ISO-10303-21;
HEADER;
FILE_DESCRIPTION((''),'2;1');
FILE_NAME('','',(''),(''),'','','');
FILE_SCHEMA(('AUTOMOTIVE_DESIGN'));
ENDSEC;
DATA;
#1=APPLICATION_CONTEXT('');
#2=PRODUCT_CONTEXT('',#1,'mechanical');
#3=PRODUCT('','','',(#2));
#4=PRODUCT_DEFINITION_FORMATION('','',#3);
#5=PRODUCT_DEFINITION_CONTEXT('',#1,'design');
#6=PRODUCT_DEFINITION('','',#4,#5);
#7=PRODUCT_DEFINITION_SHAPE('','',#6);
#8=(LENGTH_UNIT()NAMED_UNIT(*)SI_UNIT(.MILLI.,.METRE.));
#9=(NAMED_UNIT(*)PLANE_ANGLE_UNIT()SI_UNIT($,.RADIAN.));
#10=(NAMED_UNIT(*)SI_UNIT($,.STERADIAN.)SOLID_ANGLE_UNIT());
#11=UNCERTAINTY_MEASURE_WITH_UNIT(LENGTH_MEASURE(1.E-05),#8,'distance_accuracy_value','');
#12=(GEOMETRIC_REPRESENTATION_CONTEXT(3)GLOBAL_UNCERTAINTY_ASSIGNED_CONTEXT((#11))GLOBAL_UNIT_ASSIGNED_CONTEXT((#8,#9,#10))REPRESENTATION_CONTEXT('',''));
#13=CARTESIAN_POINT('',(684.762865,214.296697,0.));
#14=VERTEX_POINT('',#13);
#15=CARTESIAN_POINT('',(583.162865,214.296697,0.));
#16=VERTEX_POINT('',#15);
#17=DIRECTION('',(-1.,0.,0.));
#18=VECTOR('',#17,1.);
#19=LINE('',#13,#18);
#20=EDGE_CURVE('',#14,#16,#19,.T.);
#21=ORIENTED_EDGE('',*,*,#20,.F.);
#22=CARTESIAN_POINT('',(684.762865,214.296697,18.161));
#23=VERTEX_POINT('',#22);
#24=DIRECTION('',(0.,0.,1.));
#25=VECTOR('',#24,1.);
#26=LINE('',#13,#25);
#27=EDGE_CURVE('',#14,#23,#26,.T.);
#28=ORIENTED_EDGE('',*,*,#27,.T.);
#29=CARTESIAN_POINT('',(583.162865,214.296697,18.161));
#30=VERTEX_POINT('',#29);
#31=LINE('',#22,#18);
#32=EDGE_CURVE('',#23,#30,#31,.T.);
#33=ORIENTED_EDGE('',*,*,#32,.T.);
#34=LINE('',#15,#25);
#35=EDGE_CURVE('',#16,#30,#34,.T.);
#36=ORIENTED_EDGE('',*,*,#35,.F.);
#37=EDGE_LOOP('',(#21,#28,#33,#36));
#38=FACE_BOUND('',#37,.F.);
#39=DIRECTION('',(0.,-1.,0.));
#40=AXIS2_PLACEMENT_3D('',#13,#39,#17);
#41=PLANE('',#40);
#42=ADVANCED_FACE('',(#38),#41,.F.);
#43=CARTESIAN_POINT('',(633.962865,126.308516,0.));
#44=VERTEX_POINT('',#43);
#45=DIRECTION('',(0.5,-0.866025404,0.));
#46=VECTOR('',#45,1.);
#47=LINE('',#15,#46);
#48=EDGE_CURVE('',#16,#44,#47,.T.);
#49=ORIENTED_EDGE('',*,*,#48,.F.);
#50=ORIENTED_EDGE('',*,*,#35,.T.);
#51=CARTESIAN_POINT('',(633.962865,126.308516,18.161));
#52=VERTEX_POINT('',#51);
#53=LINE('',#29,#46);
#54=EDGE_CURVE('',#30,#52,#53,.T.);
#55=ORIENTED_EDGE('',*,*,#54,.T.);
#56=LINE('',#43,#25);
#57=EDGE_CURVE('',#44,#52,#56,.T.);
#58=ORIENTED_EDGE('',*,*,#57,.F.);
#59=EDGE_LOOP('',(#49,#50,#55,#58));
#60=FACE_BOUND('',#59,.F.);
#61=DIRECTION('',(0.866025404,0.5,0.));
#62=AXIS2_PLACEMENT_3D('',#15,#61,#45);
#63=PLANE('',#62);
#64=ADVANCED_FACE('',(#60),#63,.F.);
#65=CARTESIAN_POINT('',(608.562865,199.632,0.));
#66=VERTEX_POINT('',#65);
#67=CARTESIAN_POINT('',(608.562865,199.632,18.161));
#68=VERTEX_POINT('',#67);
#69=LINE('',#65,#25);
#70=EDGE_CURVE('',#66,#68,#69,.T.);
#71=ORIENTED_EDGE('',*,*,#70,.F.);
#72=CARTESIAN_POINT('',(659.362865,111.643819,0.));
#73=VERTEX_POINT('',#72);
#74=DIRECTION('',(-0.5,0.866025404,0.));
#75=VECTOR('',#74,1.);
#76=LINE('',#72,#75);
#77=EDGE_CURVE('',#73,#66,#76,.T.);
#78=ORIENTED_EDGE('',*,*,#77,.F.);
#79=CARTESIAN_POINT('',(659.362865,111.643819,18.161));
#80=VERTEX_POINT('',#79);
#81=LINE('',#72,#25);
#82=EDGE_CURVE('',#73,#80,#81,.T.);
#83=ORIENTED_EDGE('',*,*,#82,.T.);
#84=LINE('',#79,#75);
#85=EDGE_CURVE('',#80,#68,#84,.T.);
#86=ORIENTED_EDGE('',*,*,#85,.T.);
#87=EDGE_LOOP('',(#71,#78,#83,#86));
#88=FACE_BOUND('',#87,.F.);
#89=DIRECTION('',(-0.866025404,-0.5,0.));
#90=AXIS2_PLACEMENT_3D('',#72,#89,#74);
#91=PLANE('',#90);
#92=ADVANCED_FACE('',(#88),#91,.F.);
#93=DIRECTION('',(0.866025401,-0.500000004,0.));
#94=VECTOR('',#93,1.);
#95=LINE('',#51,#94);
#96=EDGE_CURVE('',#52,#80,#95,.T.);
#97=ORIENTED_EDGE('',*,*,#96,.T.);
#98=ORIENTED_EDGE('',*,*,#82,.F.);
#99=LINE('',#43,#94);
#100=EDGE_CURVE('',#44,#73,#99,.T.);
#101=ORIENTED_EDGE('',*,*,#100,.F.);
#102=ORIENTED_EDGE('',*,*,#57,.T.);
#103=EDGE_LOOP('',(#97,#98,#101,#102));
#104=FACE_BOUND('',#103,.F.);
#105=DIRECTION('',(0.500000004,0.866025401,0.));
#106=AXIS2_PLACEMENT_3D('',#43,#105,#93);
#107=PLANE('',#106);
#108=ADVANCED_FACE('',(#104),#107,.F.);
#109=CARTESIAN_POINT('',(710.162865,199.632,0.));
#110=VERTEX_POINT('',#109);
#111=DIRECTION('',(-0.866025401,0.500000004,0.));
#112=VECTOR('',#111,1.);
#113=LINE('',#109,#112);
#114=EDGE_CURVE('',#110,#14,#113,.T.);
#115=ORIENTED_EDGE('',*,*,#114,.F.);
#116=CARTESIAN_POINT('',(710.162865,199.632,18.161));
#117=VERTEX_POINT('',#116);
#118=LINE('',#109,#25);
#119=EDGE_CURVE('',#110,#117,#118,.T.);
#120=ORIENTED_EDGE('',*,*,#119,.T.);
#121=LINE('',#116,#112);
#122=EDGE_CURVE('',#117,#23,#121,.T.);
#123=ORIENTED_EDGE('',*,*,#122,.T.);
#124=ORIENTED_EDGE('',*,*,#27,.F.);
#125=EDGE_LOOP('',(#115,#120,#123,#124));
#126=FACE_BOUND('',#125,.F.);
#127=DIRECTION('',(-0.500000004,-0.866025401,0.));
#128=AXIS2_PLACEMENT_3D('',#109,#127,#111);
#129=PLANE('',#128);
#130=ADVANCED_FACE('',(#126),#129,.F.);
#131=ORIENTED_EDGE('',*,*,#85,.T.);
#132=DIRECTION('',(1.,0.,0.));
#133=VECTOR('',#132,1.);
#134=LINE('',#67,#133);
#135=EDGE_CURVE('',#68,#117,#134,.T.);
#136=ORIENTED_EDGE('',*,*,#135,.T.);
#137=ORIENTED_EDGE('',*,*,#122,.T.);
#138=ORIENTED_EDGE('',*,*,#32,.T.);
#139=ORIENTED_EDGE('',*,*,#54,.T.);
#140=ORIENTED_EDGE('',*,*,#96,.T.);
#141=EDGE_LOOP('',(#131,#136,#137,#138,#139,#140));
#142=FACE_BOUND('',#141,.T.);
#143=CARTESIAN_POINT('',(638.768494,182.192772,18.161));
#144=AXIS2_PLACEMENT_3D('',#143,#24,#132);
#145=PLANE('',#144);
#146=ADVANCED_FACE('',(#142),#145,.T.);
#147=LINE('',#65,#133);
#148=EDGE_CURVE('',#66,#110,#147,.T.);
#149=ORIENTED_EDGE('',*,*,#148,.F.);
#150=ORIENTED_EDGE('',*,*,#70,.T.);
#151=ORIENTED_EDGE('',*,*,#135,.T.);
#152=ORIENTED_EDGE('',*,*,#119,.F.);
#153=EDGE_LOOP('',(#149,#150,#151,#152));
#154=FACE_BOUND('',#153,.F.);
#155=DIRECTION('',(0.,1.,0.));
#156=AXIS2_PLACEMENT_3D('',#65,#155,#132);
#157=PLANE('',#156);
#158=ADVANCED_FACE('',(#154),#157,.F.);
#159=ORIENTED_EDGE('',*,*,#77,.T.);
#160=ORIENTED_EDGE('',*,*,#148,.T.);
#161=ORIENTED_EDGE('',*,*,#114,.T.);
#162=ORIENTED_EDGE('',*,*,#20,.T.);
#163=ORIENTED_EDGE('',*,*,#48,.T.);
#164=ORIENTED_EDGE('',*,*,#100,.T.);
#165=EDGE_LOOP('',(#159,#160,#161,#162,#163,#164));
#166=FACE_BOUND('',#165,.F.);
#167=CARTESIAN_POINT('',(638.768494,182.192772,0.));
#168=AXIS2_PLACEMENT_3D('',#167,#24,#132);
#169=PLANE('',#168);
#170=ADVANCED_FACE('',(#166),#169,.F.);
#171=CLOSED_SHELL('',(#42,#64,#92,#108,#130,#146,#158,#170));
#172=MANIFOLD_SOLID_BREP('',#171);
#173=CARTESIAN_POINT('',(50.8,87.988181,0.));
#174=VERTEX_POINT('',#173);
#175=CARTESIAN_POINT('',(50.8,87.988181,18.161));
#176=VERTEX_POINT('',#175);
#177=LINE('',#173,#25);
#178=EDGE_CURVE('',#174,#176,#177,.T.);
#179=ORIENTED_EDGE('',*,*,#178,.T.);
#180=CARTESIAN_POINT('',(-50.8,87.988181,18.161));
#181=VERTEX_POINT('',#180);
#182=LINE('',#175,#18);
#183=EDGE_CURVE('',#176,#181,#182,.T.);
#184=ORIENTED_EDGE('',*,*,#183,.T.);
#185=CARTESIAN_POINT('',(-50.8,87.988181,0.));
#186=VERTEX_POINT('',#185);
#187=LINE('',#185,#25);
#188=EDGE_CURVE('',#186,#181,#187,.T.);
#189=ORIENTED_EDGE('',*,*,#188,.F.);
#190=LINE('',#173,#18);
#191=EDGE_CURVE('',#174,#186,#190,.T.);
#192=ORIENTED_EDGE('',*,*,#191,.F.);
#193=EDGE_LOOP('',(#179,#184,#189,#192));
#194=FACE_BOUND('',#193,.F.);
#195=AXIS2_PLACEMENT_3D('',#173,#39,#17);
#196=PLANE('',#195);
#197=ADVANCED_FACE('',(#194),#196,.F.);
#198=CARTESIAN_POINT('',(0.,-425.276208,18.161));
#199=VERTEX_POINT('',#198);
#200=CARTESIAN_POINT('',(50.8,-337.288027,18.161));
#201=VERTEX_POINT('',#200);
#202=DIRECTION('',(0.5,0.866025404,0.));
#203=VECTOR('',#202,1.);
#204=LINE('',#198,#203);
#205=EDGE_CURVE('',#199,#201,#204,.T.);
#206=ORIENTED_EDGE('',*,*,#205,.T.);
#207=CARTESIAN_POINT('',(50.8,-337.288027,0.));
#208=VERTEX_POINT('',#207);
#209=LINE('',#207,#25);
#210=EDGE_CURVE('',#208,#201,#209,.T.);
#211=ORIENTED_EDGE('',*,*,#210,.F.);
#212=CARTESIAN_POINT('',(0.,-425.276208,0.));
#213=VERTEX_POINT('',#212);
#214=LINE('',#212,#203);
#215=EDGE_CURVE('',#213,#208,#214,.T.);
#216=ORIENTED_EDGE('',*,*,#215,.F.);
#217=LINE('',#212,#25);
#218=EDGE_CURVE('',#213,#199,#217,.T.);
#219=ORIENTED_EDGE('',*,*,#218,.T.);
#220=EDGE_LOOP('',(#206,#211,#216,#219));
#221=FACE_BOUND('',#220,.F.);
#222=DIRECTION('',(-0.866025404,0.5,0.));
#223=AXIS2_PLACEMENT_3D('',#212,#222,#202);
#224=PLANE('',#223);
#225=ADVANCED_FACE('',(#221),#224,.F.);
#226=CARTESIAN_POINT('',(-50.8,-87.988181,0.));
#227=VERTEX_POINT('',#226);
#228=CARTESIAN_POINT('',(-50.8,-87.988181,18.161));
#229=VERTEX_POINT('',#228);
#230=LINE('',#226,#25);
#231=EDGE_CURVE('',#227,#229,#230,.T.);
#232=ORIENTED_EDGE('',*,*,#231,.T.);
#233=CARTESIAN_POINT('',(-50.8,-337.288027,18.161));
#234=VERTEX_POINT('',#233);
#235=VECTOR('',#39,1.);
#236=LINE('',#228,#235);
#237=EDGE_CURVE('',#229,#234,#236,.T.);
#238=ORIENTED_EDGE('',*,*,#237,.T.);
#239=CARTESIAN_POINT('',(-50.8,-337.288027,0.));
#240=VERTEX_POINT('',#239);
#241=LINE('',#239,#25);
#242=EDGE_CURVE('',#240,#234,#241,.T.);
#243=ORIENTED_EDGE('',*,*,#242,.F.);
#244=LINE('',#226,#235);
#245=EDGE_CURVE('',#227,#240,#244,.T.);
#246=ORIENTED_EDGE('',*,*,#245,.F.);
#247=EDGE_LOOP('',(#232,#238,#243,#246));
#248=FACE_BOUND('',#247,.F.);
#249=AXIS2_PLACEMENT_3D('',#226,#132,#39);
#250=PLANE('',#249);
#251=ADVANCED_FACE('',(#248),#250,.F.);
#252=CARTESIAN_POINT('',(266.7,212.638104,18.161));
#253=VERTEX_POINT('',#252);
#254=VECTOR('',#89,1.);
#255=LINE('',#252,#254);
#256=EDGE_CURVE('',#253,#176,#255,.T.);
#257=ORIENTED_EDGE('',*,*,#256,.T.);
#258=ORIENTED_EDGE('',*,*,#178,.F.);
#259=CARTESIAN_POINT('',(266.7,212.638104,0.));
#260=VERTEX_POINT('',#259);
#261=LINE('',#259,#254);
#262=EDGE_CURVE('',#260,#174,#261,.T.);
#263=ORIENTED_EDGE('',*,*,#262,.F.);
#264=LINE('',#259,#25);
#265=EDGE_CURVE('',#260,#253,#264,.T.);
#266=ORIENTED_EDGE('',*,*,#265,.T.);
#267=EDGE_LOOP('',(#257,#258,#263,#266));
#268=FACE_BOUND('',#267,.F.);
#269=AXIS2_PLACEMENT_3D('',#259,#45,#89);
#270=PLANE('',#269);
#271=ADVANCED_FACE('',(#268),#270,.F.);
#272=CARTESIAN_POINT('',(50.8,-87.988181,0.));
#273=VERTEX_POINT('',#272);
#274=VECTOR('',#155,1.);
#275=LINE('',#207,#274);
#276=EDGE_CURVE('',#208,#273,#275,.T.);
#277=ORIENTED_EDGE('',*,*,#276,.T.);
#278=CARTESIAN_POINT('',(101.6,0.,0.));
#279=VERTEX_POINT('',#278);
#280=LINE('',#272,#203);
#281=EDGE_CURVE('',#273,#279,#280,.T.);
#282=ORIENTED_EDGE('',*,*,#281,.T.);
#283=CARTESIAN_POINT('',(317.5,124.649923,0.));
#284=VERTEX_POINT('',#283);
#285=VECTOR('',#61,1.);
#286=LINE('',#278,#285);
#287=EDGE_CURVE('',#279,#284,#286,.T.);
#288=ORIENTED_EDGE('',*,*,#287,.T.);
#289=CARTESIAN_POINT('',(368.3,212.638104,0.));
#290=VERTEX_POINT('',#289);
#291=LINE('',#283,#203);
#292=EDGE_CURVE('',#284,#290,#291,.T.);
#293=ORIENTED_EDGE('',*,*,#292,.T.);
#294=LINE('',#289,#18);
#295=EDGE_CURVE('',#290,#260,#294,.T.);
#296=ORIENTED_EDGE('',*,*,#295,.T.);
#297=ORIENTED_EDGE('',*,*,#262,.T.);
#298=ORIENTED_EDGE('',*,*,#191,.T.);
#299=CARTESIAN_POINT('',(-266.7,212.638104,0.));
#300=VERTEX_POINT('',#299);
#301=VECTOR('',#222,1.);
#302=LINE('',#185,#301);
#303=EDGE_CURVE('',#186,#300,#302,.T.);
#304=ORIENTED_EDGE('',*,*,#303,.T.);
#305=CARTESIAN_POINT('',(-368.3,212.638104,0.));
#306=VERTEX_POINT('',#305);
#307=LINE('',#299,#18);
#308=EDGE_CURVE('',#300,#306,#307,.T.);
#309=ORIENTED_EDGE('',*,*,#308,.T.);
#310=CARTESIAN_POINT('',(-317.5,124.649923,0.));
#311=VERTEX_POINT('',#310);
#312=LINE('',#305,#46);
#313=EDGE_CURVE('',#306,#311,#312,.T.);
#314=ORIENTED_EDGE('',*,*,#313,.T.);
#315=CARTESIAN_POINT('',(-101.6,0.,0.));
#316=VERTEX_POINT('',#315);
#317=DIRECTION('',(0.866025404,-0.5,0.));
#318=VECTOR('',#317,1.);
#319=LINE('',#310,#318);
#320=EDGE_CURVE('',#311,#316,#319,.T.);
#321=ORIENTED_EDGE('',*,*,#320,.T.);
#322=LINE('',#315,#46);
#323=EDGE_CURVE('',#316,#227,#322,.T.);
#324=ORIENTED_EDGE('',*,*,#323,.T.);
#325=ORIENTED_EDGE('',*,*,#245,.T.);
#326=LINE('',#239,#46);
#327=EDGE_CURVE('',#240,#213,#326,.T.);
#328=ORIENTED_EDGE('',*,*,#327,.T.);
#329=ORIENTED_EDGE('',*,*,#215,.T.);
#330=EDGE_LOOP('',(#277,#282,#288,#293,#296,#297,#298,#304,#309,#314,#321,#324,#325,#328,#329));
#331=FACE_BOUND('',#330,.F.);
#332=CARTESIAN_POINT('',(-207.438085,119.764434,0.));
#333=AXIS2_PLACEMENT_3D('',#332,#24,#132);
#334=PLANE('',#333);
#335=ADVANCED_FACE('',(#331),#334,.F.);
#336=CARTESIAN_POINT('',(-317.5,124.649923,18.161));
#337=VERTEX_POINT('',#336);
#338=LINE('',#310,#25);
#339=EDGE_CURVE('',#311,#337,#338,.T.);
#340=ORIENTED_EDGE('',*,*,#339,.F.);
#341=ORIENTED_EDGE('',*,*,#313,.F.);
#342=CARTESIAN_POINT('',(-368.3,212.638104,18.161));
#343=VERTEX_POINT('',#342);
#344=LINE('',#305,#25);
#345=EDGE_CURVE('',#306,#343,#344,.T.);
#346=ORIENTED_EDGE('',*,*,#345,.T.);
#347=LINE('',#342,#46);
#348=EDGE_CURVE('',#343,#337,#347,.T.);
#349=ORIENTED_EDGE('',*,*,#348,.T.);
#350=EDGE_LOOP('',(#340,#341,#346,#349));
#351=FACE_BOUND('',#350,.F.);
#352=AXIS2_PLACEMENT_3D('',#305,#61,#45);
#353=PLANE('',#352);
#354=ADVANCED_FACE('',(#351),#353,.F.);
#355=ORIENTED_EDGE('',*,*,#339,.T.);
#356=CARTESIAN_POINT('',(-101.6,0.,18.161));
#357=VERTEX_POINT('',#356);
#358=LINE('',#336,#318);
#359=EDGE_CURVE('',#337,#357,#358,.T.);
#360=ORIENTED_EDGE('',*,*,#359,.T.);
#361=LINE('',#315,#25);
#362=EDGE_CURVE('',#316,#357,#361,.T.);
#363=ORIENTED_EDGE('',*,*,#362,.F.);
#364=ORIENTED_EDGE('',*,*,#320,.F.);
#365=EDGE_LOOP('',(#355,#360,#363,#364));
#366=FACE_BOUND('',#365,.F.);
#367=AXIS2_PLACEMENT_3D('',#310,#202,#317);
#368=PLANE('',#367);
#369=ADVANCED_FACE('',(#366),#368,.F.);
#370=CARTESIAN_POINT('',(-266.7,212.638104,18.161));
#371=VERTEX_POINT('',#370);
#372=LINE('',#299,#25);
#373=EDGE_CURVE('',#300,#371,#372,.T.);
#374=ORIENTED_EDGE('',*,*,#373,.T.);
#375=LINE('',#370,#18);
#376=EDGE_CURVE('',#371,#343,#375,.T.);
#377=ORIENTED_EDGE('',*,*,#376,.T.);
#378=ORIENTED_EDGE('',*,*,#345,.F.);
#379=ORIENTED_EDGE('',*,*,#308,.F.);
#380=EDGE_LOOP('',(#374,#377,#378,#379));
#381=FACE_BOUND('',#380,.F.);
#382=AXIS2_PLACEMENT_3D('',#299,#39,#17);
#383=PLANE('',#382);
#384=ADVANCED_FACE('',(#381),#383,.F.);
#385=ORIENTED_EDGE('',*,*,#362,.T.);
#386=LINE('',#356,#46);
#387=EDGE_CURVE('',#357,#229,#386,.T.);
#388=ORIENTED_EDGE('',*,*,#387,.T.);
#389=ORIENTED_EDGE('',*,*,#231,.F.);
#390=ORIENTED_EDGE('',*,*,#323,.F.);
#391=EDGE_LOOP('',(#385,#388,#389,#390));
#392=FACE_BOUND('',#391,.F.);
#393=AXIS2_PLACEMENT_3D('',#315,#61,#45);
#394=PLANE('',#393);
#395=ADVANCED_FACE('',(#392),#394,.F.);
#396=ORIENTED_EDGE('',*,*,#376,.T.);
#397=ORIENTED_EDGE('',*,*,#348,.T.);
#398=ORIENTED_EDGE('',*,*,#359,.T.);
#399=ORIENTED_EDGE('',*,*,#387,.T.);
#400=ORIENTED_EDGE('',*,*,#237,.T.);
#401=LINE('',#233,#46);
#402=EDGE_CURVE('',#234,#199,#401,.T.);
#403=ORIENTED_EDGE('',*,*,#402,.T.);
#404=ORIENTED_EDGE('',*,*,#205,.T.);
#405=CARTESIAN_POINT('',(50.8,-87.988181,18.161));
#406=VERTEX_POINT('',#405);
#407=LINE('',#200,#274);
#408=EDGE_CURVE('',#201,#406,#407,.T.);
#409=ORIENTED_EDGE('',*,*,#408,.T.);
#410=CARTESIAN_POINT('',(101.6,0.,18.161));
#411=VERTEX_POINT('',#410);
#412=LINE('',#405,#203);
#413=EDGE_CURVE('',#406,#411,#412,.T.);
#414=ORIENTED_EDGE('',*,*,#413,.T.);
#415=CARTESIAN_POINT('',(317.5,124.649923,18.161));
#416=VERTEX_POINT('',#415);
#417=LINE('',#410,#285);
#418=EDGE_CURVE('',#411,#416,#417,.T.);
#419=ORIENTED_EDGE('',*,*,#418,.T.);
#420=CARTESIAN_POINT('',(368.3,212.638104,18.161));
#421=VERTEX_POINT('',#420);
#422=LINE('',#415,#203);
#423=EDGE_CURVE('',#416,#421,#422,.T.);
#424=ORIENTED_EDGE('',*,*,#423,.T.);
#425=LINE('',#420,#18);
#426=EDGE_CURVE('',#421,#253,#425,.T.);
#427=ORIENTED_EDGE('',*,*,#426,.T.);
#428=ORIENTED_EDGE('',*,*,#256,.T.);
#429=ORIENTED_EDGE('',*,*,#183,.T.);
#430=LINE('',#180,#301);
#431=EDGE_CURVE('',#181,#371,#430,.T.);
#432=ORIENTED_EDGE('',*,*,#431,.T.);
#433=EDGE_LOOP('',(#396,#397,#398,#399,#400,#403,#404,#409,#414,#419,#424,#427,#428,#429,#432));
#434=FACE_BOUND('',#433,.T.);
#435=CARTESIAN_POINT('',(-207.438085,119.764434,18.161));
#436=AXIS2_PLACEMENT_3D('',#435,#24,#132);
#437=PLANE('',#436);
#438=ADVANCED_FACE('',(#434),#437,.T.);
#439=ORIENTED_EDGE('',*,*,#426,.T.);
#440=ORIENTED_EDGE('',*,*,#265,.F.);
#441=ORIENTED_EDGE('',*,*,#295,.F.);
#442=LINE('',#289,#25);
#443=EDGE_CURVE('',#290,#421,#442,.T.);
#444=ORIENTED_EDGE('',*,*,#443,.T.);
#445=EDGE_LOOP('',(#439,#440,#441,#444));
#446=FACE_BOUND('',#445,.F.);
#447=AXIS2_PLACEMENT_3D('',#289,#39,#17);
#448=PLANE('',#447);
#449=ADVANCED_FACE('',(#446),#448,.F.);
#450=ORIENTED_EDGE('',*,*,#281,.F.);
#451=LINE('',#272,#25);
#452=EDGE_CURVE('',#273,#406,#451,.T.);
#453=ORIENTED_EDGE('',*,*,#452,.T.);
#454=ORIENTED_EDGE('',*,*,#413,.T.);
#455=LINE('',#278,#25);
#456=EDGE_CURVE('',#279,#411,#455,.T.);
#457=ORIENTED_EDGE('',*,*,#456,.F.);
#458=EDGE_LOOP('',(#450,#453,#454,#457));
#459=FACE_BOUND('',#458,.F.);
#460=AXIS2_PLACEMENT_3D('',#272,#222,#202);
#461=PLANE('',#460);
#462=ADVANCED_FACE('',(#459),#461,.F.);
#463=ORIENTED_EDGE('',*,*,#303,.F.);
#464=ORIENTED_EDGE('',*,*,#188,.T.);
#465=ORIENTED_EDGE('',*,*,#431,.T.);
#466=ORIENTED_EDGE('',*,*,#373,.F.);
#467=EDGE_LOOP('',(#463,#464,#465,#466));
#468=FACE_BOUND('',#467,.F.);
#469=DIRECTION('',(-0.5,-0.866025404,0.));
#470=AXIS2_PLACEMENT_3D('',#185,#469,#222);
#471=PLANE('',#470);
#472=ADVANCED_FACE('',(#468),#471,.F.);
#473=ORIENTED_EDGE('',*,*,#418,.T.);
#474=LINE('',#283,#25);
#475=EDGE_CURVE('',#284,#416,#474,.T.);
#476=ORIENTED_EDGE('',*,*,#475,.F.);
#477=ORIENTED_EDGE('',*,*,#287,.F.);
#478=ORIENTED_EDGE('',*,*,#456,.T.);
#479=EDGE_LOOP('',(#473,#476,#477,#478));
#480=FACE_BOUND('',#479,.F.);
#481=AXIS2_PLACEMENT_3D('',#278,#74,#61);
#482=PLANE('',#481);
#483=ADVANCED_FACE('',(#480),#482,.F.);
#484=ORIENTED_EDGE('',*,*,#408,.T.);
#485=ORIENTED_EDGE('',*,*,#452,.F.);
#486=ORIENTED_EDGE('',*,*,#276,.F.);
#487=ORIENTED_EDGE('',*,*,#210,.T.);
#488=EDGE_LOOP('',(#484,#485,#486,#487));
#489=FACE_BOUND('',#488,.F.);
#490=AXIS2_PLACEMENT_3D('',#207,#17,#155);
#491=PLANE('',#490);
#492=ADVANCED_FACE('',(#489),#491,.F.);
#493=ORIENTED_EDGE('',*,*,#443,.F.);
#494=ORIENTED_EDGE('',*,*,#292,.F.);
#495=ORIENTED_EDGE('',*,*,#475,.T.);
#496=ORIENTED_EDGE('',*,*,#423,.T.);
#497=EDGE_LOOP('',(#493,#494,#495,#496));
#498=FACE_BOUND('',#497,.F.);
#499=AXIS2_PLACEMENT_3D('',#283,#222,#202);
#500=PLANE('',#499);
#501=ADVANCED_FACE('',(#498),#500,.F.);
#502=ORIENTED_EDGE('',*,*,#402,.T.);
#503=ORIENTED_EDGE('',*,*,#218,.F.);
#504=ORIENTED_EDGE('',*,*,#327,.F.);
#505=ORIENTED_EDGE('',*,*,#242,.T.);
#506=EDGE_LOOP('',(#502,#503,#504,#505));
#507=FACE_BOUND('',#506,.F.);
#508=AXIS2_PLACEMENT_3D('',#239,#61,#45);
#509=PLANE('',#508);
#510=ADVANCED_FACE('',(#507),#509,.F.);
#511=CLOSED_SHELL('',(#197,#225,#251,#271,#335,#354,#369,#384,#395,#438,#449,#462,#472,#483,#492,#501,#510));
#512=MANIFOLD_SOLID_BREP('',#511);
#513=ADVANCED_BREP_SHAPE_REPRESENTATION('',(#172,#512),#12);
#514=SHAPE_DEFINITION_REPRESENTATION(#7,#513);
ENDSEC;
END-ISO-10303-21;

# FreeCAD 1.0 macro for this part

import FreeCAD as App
import Part
import Sketcher
Q = App.Units.Quantity


def add_polygon(sketch, points):
    """Adds a closed chain of lines whose ends are joined by coincident constraints."""
    first, n = sketch.GeometryCount, len(points)
    for a, b in zip(points, points[1:] + points[:1]):
        sketch.addGeometry(Part.LineSegment(App.Vector(*a, 0), App.Vector(*b, 0)), False)
    for i in range(n):
        sketch.addConstraint(Sketcher.Constraint("Coincident", first + i, 2, first + (i + 1) % n, 1))

doc = App.newDocument("Part")
body = doc.addObject("PartDesign::Body", "Body")
body.AllowCompound = True

sketch1 = doc.addObject("Sketcher::SketchObject", "Sketch")
body.addObject(sketch1)
sketch1.AttachmentSupport = (doc.XY_Plane, [""])
sketch1.MapMode = "FlatFace"
add_polygon(sketch1, [(-51, 88), (-267, 213), (-368, 213), (-318, 125), (-102, 0), (-51, -88), (-51, -337), (0, -425), (51, -337), (51, -88), (102, 0), (318, 125), (368, 213), (267, 213), (51, 88)])
add_polygon(sketch1, [(583, 214), (634, 126), (659, 112), (609, 200), (710, 200), (685, 214)])
sketch1.addConstraint([
    Sketcher.Constraint("Horizontal", 1),
    Sketcher.Constraint("Vertical", 5),
    Sketcher.Constraint("Vertical", 8),
    Sketcher.Constraint("Horizontal", 12),
    Sketcher.Constraint("Horizontal", 14),
    Sketcher.Constraint("Horizontal", 18),
    Sketcher.Constraint("Horizontal", 20),
    Sketcher.Constraint("Symmetric", 3, 2, 9, 2, -1, 1),
    Sketcher.Constraint("Symmetric", 4, 2, 13, 2, -1, 1),
    Sketcher.Constraint("Symmetric", 8, 2, 14, 2, -1, 1),
    Sketcher.Constraint("Symmetric", 5, 2, 7, 2, -2),
    Sketcher.Constraint("Symmetric", 2, 2, 10, 2, -2),
    Sketcher.Constraint("Symmetric", 1, 2, 11, 2, -2),
    Sketcher.Constraint("PointOnObject", 3, 2, -1),
    Sketcher.Constraint("PointOnObject", 6, 2, -2),
    Sketcher.Constraint("Parallel", 0, 3),
    Sketcher.Constraint("Parallel", 2, 4),
    Sketcher.Constraint("Parallel", 4, 6),
    Sketcher.Constraint("Perpendicular", 3, 7),
    Sketcher.Constraint("Parallel", 10, 13),
    Sketcher.Constraint("Perpendicular", 13, 15),
    Sketcher.Constraint("Perpendicular", 11, 16),
    Sketcher.Constraint("Parallel", 15, 17),
    Sketcher.Constraint("Parallel", 16, 19),
    Sketcher.Constraint("Equal", 12, 14),
    Sketcher.Constraint("Equal", 14, 18),
    Sketcher.Constraint("Equal", 18, 20),
    Sketcher.Constraint("Equal", 0, 3),
    Sketcher.Constraint("Equal", 11, 15),
    Sketcher.Constraint("DistanceX", 1, 2, 1, 1, Q("4 in")),
    Sketcher.Constraint("Distance", 2, Q("4 in")),
    Sketcher.Constraint("DistanceX", 15, 2, 16, 2, Q("1 in")),
    Sketcher.Constraint("DistanceX", 0, 2, -1, 1, Q("10.5 in")),
    Sketcher.Constraint("DistanceY", -1, 1, 17, 2, Q("199.632 mm")),
    Sketcher.Constraint("DistanceY", 5, 2, 5, 1, Q("249.299846 mm")),
    Sketcher.Constraint("DistanceX", -1, 1, 15, 2, Q("633.962865 mm")),
])
pad1 = doc.addObject("PartDesign::Pad", "Pad")
body.addObject(pad1)
pad1.Profile = sketch1
pad1.Length = Q("0.715 in")

doc.recompute()
